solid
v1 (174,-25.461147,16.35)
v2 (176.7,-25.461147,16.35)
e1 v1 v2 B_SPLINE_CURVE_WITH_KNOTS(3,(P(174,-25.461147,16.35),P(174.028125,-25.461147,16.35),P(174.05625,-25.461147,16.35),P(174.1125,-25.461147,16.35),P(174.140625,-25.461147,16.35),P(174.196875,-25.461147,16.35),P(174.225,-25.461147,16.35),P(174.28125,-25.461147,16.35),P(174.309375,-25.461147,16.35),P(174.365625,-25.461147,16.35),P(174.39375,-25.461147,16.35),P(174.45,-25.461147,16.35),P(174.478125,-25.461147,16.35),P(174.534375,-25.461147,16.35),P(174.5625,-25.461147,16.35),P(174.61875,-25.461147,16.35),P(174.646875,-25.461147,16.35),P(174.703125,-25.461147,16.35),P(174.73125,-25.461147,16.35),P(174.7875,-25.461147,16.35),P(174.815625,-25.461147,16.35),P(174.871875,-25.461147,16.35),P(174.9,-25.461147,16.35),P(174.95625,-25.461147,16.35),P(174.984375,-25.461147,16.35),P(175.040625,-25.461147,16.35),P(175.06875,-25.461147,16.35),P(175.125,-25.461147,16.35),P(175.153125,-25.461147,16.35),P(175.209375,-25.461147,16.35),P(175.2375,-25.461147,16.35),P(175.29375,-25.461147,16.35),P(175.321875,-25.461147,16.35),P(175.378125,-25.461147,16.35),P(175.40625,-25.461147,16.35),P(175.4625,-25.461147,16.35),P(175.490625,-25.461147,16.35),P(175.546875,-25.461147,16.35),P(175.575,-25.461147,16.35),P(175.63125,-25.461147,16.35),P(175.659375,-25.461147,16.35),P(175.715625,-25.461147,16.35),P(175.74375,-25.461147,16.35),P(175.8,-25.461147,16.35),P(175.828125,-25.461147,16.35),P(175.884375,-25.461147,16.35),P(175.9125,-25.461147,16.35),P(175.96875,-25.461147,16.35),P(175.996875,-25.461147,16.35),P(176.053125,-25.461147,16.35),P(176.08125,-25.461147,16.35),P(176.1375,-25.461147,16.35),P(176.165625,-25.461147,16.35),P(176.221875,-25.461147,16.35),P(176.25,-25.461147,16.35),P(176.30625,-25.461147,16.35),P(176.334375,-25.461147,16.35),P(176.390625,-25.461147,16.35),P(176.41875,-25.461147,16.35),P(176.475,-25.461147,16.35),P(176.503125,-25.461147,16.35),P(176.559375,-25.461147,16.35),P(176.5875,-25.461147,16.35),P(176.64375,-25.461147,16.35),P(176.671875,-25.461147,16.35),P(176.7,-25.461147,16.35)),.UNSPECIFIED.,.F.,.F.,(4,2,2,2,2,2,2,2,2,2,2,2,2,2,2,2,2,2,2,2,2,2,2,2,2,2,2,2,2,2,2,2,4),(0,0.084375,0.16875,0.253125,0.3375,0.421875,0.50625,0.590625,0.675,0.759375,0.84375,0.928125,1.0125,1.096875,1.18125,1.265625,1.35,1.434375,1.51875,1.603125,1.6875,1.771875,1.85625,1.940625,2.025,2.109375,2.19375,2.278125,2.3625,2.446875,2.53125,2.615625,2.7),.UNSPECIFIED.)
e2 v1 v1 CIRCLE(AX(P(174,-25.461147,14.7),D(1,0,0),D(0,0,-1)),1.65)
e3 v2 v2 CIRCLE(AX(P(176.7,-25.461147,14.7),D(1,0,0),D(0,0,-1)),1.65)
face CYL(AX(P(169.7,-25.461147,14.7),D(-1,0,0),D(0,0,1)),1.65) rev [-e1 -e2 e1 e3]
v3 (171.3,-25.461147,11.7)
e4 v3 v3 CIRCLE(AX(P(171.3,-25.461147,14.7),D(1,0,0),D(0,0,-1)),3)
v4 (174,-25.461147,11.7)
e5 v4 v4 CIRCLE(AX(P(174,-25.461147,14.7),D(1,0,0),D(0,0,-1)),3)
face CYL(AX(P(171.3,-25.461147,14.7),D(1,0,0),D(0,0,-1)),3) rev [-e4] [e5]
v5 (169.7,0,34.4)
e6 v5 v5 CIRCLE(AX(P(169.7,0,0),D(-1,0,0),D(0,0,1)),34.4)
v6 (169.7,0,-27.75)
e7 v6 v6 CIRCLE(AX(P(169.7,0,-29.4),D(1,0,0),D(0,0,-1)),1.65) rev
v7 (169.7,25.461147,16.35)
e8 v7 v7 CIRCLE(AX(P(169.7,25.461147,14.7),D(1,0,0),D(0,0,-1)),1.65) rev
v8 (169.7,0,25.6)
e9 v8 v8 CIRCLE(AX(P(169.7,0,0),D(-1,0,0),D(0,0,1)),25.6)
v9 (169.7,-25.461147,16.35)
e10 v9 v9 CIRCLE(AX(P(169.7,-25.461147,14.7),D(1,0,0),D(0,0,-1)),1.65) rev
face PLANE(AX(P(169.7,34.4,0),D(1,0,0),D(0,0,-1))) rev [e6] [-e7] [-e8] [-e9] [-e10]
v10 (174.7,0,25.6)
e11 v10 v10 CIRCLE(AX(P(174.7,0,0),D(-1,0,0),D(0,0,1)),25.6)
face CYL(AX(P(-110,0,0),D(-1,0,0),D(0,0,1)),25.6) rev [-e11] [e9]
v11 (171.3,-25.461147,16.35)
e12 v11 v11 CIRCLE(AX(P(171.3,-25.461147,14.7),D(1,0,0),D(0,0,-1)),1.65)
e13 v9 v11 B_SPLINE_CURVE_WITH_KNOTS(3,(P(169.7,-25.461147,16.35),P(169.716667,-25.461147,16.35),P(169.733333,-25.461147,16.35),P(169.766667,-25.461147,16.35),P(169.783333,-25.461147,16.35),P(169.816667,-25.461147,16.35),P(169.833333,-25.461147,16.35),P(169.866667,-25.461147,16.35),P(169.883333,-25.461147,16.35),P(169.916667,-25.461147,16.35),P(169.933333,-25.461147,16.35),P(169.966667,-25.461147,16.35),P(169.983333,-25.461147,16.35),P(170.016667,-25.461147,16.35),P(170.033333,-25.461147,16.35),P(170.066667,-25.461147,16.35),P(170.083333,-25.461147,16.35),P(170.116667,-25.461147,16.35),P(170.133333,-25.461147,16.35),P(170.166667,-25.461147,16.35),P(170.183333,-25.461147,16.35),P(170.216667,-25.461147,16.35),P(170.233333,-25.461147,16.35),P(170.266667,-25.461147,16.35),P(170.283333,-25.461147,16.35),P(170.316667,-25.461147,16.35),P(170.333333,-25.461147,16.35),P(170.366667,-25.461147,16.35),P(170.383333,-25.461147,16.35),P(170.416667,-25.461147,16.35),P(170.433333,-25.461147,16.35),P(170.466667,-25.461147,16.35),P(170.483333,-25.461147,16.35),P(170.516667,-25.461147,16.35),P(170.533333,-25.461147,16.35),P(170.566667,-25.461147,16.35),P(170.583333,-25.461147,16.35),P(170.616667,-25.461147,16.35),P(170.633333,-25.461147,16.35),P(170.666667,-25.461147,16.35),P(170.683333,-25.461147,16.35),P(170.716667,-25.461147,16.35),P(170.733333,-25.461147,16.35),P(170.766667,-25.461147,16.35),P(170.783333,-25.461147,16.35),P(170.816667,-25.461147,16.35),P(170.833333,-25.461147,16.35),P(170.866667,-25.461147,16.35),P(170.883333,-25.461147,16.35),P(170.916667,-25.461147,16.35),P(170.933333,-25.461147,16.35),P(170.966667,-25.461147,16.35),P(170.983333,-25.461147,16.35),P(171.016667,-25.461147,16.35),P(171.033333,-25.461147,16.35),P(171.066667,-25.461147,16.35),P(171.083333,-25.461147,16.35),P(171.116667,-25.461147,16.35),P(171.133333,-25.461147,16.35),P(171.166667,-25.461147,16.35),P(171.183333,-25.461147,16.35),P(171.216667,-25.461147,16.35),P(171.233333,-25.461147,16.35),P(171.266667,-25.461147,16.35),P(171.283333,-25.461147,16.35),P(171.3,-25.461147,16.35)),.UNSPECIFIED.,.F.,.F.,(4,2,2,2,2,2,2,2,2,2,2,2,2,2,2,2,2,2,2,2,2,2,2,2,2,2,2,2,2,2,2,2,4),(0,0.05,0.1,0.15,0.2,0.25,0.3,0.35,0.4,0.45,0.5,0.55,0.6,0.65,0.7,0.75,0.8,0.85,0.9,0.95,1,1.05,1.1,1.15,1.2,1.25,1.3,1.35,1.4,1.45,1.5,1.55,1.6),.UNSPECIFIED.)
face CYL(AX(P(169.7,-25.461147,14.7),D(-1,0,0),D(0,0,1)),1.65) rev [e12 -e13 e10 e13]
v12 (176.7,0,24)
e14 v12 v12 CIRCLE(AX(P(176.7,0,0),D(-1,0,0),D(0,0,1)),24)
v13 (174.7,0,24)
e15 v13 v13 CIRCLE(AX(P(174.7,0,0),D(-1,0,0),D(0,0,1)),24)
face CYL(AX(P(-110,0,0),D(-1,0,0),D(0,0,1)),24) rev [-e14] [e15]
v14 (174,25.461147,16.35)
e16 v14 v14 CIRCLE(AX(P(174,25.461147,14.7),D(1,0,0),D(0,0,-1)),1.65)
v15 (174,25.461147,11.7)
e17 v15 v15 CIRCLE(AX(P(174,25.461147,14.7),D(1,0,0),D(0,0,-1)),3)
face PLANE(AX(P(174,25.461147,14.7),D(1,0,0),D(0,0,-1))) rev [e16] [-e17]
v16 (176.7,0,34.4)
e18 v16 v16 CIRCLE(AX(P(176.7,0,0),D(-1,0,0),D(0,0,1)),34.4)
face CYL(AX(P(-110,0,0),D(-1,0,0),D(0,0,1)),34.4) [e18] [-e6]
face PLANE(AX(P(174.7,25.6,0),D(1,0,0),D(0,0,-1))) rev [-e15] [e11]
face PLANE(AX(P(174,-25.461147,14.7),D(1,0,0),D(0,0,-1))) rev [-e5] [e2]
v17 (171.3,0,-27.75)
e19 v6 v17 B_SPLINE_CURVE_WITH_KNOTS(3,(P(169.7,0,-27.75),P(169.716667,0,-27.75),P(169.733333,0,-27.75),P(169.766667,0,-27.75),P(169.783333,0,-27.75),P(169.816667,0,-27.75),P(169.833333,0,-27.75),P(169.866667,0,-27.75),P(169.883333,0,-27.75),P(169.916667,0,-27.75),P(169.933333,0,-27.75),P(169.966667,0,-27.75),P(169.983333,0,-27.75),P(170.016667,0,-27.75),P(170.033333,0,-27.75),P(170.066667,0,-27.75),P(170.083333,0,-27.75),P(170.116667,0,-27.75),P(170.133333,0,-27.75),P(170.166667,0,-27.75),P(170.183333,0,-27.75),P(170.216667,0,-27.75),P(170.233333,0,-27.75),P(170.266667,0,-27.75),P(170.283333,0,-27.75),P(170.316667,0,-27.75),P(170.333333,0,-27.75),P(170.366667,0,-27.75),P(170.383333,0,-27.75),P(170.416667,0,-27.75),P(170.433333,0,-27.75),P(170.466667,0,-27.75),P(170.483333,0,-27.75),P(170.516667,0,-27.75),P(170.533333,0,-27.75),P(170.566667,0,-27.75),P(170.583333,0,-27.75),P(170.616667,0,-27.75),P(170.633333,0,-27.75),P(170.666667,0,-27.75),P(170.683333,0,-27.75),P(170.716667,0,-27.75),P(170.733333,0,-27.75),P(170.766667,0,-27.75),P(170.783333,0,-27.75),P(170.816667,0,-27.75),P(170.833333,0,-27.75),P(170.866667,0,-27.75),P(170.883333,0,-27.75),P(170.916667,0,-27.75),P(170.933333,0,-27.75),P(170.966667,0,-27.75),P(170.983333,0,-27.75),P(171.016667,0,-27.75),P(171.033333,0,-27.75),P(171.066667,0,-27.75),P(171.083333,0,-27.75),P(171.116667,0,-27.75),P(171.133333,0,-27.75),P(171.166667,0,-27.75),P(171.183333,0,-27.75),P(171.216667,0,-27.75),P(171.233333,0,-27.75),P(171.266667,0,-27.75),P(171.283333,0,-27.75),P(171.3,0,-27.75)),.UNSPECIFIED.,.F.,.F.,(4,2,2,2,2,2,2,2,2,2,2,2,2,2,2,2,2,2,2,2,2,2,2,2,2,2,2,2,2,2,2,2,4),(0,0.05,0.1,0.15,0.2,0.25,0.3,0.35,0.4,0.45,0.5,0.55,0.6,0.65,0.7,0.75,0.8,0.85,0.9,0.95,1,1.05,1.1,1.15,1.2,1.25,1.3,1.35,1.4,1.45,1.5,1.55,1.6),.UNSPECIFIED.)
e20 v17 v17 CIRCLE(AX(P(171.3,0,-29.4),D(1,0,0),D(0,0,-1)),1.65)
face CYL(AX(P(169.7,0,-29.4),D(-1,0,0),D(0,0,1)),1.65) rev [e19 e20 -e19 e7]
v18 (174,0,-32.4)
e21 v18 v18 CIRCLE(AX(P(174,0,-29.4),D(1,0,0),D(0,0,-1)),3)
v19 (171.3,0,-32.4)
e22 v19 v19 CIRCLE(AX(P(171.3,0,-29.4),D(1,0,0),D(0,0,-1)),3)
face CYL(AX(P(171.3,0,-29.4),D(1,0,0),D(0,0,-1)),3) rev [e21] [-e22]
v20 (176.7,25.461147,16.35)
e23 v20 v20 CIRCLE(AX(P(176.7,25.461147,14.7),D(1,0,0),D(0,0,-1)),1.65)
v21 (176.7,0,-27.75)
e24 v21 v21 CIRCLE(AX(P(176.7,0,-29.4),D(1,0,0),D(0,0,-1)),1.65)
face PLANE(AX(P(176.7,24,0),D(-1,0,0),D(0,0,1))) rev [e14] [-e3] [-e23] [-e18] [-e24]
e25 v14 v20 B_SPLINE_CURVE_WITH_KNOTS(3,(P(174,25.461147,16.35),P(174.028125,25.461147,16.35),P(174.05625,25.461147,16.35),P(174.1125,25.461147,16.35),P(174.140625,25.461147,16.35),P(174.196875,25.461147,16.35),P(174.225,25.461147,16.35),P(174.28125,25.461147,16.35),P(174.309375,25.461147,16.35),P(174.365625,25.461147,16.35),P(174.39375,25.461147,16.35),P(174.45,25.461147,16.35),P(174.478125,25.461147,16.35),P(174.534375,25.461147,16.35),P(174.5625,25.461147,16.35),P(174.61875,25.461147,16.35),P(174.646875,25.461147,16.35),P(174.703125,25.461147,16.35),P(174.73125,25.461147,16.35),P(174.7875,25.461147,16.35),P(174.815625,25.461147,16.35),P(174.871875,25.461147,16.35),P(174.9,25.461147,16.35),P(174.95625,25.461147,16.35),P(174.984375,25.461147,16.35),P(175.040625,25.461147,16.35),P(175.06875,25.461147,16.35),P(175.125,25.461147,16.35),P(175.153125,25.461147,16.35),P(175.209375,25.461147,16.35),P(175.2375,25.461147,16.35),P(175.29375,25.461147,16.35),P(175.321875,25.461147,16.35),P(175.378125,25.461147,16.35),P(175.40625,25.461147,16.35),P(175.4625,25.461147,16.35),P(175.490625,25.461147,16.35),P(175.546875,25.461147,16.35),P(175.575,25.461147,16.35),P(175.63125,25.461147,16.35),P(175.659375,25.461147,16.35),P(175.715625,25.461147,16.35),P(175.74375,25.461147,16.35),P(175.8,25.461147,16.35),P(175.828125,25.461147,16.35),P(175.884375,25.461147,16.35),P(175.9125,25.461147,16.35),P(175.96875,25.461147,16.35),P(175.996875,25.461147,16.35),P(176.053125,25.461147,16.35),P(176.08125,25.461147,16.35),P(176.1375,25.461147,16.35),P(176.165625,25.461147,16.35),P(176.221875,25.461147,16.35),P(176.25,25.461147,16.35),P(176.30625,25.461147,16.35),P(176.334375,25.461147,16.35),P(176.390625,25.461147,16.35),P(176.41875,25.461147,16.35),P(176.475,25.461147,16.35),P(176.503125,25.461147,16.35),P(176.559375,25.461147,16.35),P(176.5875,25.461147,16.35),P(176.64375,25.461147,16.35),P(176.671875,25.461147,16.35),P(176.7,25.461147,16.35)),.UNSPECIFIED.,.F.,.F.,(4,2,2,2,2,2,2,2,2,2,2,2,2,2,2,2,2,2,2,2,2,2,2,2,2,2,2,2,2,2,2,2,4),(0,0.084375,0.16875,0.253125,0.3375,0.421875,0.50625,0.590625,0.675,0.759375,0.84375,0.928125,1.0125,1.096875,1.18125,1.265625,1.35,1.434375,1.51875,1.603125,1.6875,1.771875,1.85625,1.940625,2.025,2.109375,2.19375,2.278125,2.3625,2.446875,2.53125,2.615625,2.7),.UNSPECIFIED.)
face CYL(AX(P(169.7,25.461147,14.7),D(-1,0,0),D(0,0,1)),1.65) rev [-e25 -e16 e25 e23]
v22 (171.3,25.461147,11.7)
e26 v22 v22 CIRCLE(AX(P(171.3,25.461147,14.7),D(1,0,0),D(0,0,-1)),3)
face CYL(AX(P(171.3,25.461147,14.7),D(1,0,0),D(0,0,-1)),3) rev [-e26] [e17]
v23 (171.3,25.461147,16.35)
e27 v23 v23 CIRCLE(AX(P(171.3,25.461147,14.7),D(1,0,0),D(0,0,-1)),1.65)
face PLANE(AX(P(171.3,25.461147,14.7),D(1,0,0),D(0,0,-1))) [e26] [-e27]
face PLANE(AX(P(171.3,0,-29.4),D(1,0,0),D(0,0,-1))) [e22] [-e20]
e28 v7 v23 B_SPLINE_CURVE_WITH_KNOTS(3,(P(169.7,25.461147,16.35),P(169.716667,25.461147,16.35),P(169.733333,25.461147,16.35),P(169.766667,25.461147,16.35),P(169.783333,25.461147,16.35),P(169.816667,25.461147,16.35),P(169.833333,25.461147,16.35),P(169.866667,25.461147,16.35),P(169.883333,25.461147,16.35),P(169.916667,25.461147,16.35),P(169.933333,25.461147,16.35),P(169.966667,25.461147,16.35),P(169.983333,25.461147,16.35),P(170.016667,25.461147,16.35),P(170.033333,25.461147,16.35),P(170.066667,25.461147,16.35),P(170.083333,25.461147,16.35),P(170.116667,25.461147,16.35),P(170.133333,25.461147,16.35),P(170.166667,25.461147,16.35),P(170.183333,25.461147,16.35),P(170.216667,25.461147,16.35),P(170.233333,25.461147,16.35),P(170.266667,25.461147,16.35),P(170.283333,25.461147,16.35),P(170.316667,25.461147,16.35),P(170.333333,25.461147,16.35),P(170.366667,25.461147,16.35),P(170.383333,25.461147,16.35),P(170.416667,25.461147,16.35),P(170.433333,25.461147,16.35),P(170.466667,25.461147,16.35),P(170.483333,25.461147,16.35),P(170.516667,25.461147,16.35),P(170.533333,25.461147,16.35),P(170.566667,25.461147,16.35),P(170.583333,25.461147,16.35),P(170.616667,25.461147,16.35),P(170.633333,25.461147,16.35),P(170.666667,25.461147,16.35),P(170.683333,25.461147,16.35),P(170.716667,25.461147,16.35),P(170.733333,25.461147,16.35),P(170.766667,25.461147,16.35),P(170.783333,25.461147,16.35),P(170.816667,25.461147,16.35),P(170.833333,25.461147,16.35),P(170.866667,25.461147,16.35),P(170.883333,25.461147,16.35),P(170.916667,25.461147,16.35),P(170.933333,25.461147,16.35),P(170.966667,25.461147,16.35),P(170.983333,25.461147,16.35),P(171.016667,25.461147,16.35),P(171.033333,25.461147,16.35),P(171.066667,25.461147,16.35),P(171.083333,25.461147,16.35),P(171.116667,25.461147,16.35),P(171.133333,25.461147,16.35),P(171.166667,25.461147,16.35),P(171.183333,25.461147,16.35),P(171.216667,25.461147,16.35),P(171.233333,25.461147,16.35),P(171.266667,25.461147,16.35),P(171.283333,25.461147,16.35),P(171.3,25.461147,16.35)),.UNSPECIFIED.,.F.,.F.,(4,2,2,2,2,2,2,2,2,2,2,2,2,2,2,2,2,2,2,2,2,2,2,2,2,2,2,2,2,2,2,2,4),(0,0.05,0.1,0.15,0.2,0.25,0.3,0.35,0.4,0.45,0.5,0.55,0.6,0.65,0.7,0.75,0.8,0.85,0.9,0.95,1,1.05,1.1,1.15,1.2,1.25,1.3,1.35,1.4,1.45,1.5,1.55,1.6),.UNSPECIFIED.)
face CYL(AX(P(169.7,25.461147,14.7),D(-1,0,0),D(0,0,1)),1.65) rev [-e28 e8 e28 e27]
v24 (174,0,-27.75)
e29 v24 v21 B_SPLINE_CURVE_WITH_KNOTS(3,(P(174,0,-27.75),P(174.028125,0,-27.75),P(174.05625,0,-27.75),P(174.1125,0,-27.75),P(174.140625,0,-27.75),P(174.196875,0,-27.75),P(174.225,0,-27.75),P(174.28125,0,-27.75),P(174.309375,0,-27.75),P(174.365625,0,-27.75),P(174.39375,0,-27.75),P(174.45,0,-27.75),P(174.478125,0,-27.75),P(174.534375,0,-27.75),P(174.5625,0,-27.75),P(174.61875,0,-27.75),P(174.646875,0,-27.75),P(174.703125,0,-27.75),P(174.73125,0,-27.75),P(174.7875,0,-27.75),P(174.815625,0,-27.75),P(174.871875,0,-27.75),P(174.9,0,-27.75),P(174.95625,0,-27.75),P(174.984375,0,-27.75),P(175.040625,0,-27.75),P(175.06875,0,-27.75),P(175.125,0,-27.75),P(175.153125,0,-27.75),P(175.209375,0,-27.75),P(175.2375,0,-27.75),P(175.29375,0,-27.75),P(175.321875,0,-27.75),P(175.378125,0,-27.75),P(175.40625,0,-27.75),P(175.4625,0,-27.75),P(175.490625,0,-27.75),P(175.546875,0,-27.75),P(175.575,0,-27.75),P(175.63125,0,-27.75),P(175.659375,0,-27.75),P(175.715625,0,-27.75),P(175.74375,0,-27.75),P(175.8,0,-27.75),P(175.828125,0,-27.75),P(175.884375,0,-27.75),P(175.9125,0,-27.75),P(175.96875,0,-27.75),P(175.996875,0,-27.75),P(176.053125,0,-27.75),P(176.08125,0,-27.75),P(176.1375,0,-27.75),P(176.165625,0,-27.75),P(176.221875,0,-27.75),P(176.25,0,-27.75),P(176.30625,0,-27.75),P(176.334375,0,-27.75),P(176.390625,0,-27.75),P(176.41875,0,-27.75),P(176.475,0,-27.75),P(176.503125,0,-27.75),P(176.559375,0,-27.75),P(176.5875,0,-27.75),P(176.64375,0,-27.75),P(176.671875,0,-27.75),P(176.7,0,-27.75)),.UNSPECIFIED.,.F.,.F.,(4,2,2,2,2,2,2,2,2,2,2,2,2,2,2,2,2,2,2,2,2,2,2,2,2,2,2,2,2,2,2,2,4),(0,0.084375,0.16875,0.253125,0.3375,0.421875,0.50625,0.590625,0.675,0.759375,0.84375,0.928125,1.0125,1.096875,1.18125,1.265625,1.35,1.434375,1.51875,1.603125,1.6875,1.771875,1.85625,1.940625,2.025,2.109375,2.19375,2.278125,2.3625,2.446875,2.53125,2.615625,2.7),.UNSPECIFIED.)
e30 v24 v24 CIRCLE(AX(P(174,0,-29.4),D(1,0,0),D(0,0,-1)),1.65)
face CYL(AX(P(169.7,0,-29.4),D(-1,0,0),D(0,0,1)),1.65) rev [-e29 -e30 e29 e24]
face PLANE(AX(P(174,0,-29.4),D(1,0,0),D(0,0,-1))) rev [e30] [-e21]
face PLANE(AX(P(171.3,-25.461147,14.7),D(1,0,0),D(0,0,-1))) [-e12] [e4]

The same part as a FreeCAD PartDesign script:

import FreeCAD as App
import Part
import Sketcher

V = App.Vector


def add_polygon(sketch, points):
    """Adds a closed chain of lines whose ends are joined by coincident constraints."""
    first, n = sketch.GeometryCount, len(points)
    for a, b in zip(points, points[1:] + points[:1]):
        sketch.addGeometry(Part.LineSegment(App.Vector(*a, 0), App.Vector(*b, 0)), False)
    for i in range(n):
        sketch.addConstraint(Sketcher.Constraint("Coincident", first + i, 2, first + (i + 1) % n, 1))

doc = App.newDocument("Part")
body = doc.addObject("PartDesign::Body", "Body")

sketch1 = doc.addObject("Sketcher::SketchObject", "Sketch")
body.addObject(sketch1)
sketch1.AttachmentSupport = (doc.XY_Plane, [""])
sketch1.MapMode = "FlatFace"
add_polygon(sketch1, [(169.7, 25.6), (174.7, 25.6), (174.7, 24), (176.7, 24), (176.7, 34.4), (169.7, 34.4)])
sketch1.addConstraint([
    Sketcher.Constraint("Horizontal", 0),
    Sketcher.Constraint("Vertical", 1),
    Sketcher.Constraint("Horizontal", 2),
    Sketcher.Constraint("Vertical", 3),
    Sketcher.Constraint("Horizontal", 4),
    Sketcher.Constraint("Vertical", 5),
    Sketcher.Constraint("DistanceX", 0, 1, 0, 2, 5.0),
    Sketcher.Constraint("DistanceX", 2, 1, 2, 2, 2.0),
    Sketcher.Constraint("DistanceY", 1, 2, 1, 1, 1.6),
    Sketcher.Constraint("DistanceY", 3, 1, 3, 2, 10.4),
    Sketcher.Constraint("DistanceY", -1, 1, 1, 2, 24.0),
    Sketcher.Constraint("DistanceX", -1, 1, 0, 2, 174.7),
])
revolution = doc.addObject("PartDesign::Revolution", "Revolution")
body.addObject(revolution)
revolution.Profile = sketch1
revolution.ReferenceAxis = (sketch1, ["H_Axis"])
revolution.Angle = 360

sketch2 = doc.addObject("Sketcher::SketchObject", "Sketch001")
body.addObject(sketch2)
sketch2.AttachmentSupport = (doc.YZ_Plane, [""])
sketch2.MapMode = "FlatFace"
sketch2.addGeometry([
    Part.Circle(V(0, -29.4, 0), V(0, 0, 1), 1.65),
    Part.Circle(V(25.461147, 14.7, 0), V(0, 0, 1), 1.65),
    Part.Circle(V(-25.461147, 14.7, 0), V(0, 0, 1), 1.65),
], False)
sketch2.addConstraint([
    Sketcher.Constraint("Equal", 0, 1),
    Sketcher.Constraint("Equal", 1, 2),
    Sketcher.Constraint("Symmetric", 1, 3, 2, 3, -2),
    Sketcher.Constraint("PointOnObject", 0, 3, -2),
    Sketcher.Constraint("Diameter", 0, 3.3),
    Sketcher.Constraint("DistanceY", 0, 3, -1, 1, 29.4),
    Sketcher.Constraint("DistanceY", -1, 1, 1, 3, 14.7),
    Sketcher.Constraint("DistanceX", -1, 1, 1, 3, 25.461147),
])
pocket1 = doc.addObject("PartDesign::Pocket", "Pocket")
body.addObject(pocket1)
pocket1.Profile = sketch2
pocket1.Type = "ThroughAll"
pocket1.Midplane = True

sketch3 = doc.addObject("Sketcher::SketchObject", "Sketch002")
body.addObject(sketch3)
sketch3.AttachmentSupport = (doc.YZ_Plane, [""])
sketch3.MapMode = "FlatFace"
sketch3.AttachmentOffset = App.Placement(V(0, 0, 174), App.Rotation())
sketch3.addGeometry([
    Part.Circle(V(0, -29.4, 0), V(0, 0, 1), 3),
    Part.Circle(V(25.461147, 14.7, 0), V(0, 0, 1), 3),
    Part.Circle(V(-25.461147, 14.7, 0), V(0, 0, 1), 3),
], False)
sketch3.addConstraint([
    Sketcher.Constraint("Equal", 0, 1),
    Sketcher.Constraint("Equal", 1, 2),
    Sketcher.Constraint("Symmetric", 1, 3, 2, 3, -2),
    Sketcher.Constraint("PointOnObject", 0, 3, -2),
    Sketcher.Constraint("Diameter", 0, 6.0),
    Sketcher.Constraint("DistanceY", 0, 3, -1, 1, 29.4),
    Sketcher.Constraint("DistanceY", -1, 1, 1, 3, 14.7),
    Sketcher.Constraint("DistanceX", -1, 1, 1, 3, 25.461147),
])
pocket2 = doc.addObject("PartDesign::Pocket", "Pocket001")
body.addObject(pocket2)
pocket2.Profile = sketch3
pocket2.Length = 2.7

doc.recompute()
